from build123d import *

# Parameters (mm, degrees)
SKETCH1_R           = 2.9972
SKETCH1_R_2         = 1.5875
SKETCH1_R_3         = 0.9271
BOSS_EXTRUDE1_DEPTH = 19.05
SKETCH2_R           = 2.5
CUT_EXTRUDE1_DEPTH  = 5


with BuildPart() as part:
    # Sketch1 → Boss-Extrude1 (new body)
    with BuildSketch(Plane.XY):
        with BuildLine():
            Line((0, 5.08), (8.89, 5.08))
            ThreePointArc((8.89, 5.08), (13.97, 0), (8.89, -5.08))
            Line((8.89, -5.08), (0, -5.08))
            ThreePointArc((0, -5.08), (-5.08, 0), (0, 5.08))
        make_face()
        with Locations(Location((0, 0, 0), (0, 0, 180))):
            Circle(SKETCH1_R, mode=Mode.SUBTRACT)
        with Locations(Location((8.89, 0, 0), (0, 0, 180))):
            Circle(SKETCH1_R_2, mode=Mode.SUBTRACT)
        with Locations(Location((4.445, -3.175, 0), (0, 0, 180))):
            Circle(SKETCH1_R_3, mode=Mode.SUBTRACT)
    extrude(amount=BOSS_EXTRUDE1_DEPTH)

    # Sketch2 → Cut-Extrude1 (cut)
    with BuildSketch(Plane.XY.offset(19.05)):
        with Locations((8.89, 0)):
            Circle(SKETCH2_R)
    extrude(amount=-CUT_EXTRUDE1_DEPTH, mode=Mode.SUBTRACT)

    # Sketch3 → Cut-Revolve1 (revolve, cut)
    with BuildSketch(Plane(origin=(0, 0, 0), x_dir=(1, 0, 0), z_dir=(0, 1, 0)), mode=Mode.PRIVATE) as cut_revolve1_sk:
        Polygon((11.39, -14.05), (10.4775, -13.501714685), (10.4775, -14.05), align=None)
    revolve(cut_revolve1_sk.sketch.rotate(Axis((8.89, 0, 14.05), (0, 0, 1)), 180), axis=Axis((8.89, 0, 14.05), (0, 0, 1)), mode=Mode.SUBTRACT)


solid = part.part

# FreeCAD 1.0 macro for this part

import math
import FreeCAD as App
import Part
import Sketcher
from FreeCAD import Vector
Q = App.Units.Quantity

doc = App.newDocument("Part")
body = doc.addObject("PartDesign::Body", "Body")

# Sketch on XY plane
sketch1 = body.newObject("Sketcher::SketchObject", "Sketch")
sketch1.AttachmentSupport = (doc.getObject("XY_Plane"), [""])
sketch1.MapMode = "FlatFace"
sketch1.addGeometry(Part.LineSegment(Vector(8.9, 5.1, 0), Vector(0, 5.1, 0)), False)
sketch1.addGeometry(Part.ArcOfCircle(Part.Circle(Vector(0, 0, 0), Vector(0, 0, 1), 5.1), math.radians(90), math.radians(270)), False)
sketch1.addGeometry(Part.LineSegment(Vector(0, -5.1, 0), Vector(8.9, -5.1, 0)), False)
sketch1.addGeometry(Part.ArcOfCircle(Part.Circle(Vector(8.9, 0, 0), Vector(0, 0, 1), 5.1), math.radians(-90), math.radians(90)), False)
sketch1.addGeometry(Part.Circle(Vector(4.4, -3.2, 0), Vector(0, 0, 1), 0.9), False)
sketch1.addGeometry(Part.Circle(Vector(8.9, 0, 0), Vector(0, 0, 1), 1.6), False)
sketch1.addGeometry(Part.Circle(Vector(0, 0, 0), Vector(0, 0, 1), 3), False)
sketch1.addConstraint(Sketcher.Constraint("Tangent", 0, 2, 1, 1))
sketch1.addConstraint(Sketcher.Constraint("Tangent", 1, 2, 2, 1))
sketch1.addConstraint(Sketcher.Constraint("Tangent", 2, 2, 3, 1))
sketch1.addConstraint(Sketcher.Constraint("Tangent", 3, 2, 0, 1))
sketch1.addConstraint(Sketcher.Constraint("Horizontal", 0))
sketch1.addConstraint(Sketcher.Constraint("Horizontal", 2))
sketch1.addConstraint(Sketcher.Constraint("Coincident", 1, 3, -1, 1))
sketch1.addConstraint(Sketcher.Constraint("Coincident", 6, 3, -1, 1))
sketch1.addConstraint(Sketcher.Constraint("Coincident", 5, 3, 3, 3))
sketch1.addConstraint(Sketcher.Constraint("Radius", 1, Q("0.2 in")))
sketch1.addConstraint(Sketcher.Constraint("Diameter", 4, Q("0.073 in")))
sketch1.addConstraint(Sketcher.Constraint("Diameter", 5, Q("0.125 in")))
sketch1.addConstraint(Sketcher.Constraint("Diameter", 6, Q("0.236 in")))
sketch1.addConstraint(Sketcher.Constraint("DistanceX", 0, 2, 0, 1, Q("0.35 in")))
sketch1.addConstraint(Sketcher.Constraint("DistanceX", -1, 1, 4, 3, Q("0.175 in")))
sketch1.addConstraint(Sketcher.Constraint("DistanceY", 4, 3, -1, 1, Q("0.125 in")))
pad1 = body.newObject("PartDesign::Pad", "Pad")
pad1.Profile = sketch1
pad1.Length = Q("0.75 in")

# Sketch on XY plane
sketch2 = body.newObject("Sketcher::SketchObject", "Sketch001")
sketch2.AttachmentSupport = (doc.getObject("XY_Plane"), [""])
sketch2.MapMode = "FlatFace"
sketch2.AttachmentOffset = App.Placement(Vector(0, 0, 0.75 * 25.4), App.Rotation())
sketch2.addGeometry(Part.Circle(Vector(8.9, 0, 0), Vector(0, 0, 1), 2.5), False)
sketch2.addConstraint(Sketcher.Constraint("PointOnObject", 0, 3, -1))
sketch2.addConstraint(Sketcher.Constraint("Diameter", 0, Q("5 mm")))
sketch2.addConstraint(Sketcher.Constraint("DistanceX", -1, 1, 0, 3, Q("0.35 in")))
pocket1 = body.newObject("PartDesign::Pocket", "Pocket")
pocket1.Profile = sketch2
pocket1.Length = 5

# Sketch on XZ plane
sketch3 = body.newObject("Sketcher::SketchObject", "Sketch002")
sketch3.AttachmentSupport = (doc.getObject("XZ_Plane"), [""])
sketch3.MapMode = "FlatFace"
sketch3.addGeometry(Part.LineSegment(Vector(11.4, 14.1, 0), Vector(10.5, 13.5, 0)), False)
sketch3.addGeometry(Part.LineSegment(Vector(10.5, 13.5, 0), Vector(10.5, 14.1, 0)), False)
sketch3.addGeometry(Part.LineSegment(Vector(10.5, 14.1, 0), Vector(11.4, 14.1, 0)), False)
sketch3.addGeometry(Part.LineSegment(Vector(8.9, 13.5, 0), Vector(8.9, 14.1, 0)), True)  # axis
sketch3.addConstraint(Sketcher.Constraint("Coincident", 0, 2, 1, 1))
sketch3.addConstraint(Sketcher.Constraint("Coincident", 1, 2, 2, 1))
sketch3.addConstraint(Sketcher.Constraint("Coincident", 2, 2, 0, 1))
sketch3.addConstraint(Sketcher.Constraint("Vertical", 1))
sketch3.addConstraint(Sketcher.Constraint("Horizontal", 2))
sketch3.addConstraint(Sketcher.Constraint("Vertical", 3))
sketch3.addConstraint(Sketcher.Constraint("Horizontal", 0, 2, 3, 1))
sketch3.addConstraint(Sketcher.Constraint("Horizontal", 2, 2, 3, 2))
sketch3.addConstraint(Sketcher.Constraint("Angle", 0, Q("-149 deg")))
sketch3.addConstraint(Sketcher.Constraint("DistanceX", -1, 1, 3, 1, Q("0.35 in")))
sketch3.addConstraint(Sketcher.Constraint("DistanceX", 3, 1, 0, 2, Q("0.0625 in")))
sketch3.addConstraint(Sketcher.Constraint("DistanceX", 2, 1, 2, 2, Q("0.9125 mm")))
sketch3.addConstraint(Sketcher.Constraint("DistanceY", -1, 1, 1, 2, Q("14.05 mm")))
groove = body.newObject("PartDesign::Groove", "Groove")
groove.Profile = sketch3
groove.ReferenceAxis = (sketch3, ["Axis0"])
groove.Angle = 360

doc.recompute()
